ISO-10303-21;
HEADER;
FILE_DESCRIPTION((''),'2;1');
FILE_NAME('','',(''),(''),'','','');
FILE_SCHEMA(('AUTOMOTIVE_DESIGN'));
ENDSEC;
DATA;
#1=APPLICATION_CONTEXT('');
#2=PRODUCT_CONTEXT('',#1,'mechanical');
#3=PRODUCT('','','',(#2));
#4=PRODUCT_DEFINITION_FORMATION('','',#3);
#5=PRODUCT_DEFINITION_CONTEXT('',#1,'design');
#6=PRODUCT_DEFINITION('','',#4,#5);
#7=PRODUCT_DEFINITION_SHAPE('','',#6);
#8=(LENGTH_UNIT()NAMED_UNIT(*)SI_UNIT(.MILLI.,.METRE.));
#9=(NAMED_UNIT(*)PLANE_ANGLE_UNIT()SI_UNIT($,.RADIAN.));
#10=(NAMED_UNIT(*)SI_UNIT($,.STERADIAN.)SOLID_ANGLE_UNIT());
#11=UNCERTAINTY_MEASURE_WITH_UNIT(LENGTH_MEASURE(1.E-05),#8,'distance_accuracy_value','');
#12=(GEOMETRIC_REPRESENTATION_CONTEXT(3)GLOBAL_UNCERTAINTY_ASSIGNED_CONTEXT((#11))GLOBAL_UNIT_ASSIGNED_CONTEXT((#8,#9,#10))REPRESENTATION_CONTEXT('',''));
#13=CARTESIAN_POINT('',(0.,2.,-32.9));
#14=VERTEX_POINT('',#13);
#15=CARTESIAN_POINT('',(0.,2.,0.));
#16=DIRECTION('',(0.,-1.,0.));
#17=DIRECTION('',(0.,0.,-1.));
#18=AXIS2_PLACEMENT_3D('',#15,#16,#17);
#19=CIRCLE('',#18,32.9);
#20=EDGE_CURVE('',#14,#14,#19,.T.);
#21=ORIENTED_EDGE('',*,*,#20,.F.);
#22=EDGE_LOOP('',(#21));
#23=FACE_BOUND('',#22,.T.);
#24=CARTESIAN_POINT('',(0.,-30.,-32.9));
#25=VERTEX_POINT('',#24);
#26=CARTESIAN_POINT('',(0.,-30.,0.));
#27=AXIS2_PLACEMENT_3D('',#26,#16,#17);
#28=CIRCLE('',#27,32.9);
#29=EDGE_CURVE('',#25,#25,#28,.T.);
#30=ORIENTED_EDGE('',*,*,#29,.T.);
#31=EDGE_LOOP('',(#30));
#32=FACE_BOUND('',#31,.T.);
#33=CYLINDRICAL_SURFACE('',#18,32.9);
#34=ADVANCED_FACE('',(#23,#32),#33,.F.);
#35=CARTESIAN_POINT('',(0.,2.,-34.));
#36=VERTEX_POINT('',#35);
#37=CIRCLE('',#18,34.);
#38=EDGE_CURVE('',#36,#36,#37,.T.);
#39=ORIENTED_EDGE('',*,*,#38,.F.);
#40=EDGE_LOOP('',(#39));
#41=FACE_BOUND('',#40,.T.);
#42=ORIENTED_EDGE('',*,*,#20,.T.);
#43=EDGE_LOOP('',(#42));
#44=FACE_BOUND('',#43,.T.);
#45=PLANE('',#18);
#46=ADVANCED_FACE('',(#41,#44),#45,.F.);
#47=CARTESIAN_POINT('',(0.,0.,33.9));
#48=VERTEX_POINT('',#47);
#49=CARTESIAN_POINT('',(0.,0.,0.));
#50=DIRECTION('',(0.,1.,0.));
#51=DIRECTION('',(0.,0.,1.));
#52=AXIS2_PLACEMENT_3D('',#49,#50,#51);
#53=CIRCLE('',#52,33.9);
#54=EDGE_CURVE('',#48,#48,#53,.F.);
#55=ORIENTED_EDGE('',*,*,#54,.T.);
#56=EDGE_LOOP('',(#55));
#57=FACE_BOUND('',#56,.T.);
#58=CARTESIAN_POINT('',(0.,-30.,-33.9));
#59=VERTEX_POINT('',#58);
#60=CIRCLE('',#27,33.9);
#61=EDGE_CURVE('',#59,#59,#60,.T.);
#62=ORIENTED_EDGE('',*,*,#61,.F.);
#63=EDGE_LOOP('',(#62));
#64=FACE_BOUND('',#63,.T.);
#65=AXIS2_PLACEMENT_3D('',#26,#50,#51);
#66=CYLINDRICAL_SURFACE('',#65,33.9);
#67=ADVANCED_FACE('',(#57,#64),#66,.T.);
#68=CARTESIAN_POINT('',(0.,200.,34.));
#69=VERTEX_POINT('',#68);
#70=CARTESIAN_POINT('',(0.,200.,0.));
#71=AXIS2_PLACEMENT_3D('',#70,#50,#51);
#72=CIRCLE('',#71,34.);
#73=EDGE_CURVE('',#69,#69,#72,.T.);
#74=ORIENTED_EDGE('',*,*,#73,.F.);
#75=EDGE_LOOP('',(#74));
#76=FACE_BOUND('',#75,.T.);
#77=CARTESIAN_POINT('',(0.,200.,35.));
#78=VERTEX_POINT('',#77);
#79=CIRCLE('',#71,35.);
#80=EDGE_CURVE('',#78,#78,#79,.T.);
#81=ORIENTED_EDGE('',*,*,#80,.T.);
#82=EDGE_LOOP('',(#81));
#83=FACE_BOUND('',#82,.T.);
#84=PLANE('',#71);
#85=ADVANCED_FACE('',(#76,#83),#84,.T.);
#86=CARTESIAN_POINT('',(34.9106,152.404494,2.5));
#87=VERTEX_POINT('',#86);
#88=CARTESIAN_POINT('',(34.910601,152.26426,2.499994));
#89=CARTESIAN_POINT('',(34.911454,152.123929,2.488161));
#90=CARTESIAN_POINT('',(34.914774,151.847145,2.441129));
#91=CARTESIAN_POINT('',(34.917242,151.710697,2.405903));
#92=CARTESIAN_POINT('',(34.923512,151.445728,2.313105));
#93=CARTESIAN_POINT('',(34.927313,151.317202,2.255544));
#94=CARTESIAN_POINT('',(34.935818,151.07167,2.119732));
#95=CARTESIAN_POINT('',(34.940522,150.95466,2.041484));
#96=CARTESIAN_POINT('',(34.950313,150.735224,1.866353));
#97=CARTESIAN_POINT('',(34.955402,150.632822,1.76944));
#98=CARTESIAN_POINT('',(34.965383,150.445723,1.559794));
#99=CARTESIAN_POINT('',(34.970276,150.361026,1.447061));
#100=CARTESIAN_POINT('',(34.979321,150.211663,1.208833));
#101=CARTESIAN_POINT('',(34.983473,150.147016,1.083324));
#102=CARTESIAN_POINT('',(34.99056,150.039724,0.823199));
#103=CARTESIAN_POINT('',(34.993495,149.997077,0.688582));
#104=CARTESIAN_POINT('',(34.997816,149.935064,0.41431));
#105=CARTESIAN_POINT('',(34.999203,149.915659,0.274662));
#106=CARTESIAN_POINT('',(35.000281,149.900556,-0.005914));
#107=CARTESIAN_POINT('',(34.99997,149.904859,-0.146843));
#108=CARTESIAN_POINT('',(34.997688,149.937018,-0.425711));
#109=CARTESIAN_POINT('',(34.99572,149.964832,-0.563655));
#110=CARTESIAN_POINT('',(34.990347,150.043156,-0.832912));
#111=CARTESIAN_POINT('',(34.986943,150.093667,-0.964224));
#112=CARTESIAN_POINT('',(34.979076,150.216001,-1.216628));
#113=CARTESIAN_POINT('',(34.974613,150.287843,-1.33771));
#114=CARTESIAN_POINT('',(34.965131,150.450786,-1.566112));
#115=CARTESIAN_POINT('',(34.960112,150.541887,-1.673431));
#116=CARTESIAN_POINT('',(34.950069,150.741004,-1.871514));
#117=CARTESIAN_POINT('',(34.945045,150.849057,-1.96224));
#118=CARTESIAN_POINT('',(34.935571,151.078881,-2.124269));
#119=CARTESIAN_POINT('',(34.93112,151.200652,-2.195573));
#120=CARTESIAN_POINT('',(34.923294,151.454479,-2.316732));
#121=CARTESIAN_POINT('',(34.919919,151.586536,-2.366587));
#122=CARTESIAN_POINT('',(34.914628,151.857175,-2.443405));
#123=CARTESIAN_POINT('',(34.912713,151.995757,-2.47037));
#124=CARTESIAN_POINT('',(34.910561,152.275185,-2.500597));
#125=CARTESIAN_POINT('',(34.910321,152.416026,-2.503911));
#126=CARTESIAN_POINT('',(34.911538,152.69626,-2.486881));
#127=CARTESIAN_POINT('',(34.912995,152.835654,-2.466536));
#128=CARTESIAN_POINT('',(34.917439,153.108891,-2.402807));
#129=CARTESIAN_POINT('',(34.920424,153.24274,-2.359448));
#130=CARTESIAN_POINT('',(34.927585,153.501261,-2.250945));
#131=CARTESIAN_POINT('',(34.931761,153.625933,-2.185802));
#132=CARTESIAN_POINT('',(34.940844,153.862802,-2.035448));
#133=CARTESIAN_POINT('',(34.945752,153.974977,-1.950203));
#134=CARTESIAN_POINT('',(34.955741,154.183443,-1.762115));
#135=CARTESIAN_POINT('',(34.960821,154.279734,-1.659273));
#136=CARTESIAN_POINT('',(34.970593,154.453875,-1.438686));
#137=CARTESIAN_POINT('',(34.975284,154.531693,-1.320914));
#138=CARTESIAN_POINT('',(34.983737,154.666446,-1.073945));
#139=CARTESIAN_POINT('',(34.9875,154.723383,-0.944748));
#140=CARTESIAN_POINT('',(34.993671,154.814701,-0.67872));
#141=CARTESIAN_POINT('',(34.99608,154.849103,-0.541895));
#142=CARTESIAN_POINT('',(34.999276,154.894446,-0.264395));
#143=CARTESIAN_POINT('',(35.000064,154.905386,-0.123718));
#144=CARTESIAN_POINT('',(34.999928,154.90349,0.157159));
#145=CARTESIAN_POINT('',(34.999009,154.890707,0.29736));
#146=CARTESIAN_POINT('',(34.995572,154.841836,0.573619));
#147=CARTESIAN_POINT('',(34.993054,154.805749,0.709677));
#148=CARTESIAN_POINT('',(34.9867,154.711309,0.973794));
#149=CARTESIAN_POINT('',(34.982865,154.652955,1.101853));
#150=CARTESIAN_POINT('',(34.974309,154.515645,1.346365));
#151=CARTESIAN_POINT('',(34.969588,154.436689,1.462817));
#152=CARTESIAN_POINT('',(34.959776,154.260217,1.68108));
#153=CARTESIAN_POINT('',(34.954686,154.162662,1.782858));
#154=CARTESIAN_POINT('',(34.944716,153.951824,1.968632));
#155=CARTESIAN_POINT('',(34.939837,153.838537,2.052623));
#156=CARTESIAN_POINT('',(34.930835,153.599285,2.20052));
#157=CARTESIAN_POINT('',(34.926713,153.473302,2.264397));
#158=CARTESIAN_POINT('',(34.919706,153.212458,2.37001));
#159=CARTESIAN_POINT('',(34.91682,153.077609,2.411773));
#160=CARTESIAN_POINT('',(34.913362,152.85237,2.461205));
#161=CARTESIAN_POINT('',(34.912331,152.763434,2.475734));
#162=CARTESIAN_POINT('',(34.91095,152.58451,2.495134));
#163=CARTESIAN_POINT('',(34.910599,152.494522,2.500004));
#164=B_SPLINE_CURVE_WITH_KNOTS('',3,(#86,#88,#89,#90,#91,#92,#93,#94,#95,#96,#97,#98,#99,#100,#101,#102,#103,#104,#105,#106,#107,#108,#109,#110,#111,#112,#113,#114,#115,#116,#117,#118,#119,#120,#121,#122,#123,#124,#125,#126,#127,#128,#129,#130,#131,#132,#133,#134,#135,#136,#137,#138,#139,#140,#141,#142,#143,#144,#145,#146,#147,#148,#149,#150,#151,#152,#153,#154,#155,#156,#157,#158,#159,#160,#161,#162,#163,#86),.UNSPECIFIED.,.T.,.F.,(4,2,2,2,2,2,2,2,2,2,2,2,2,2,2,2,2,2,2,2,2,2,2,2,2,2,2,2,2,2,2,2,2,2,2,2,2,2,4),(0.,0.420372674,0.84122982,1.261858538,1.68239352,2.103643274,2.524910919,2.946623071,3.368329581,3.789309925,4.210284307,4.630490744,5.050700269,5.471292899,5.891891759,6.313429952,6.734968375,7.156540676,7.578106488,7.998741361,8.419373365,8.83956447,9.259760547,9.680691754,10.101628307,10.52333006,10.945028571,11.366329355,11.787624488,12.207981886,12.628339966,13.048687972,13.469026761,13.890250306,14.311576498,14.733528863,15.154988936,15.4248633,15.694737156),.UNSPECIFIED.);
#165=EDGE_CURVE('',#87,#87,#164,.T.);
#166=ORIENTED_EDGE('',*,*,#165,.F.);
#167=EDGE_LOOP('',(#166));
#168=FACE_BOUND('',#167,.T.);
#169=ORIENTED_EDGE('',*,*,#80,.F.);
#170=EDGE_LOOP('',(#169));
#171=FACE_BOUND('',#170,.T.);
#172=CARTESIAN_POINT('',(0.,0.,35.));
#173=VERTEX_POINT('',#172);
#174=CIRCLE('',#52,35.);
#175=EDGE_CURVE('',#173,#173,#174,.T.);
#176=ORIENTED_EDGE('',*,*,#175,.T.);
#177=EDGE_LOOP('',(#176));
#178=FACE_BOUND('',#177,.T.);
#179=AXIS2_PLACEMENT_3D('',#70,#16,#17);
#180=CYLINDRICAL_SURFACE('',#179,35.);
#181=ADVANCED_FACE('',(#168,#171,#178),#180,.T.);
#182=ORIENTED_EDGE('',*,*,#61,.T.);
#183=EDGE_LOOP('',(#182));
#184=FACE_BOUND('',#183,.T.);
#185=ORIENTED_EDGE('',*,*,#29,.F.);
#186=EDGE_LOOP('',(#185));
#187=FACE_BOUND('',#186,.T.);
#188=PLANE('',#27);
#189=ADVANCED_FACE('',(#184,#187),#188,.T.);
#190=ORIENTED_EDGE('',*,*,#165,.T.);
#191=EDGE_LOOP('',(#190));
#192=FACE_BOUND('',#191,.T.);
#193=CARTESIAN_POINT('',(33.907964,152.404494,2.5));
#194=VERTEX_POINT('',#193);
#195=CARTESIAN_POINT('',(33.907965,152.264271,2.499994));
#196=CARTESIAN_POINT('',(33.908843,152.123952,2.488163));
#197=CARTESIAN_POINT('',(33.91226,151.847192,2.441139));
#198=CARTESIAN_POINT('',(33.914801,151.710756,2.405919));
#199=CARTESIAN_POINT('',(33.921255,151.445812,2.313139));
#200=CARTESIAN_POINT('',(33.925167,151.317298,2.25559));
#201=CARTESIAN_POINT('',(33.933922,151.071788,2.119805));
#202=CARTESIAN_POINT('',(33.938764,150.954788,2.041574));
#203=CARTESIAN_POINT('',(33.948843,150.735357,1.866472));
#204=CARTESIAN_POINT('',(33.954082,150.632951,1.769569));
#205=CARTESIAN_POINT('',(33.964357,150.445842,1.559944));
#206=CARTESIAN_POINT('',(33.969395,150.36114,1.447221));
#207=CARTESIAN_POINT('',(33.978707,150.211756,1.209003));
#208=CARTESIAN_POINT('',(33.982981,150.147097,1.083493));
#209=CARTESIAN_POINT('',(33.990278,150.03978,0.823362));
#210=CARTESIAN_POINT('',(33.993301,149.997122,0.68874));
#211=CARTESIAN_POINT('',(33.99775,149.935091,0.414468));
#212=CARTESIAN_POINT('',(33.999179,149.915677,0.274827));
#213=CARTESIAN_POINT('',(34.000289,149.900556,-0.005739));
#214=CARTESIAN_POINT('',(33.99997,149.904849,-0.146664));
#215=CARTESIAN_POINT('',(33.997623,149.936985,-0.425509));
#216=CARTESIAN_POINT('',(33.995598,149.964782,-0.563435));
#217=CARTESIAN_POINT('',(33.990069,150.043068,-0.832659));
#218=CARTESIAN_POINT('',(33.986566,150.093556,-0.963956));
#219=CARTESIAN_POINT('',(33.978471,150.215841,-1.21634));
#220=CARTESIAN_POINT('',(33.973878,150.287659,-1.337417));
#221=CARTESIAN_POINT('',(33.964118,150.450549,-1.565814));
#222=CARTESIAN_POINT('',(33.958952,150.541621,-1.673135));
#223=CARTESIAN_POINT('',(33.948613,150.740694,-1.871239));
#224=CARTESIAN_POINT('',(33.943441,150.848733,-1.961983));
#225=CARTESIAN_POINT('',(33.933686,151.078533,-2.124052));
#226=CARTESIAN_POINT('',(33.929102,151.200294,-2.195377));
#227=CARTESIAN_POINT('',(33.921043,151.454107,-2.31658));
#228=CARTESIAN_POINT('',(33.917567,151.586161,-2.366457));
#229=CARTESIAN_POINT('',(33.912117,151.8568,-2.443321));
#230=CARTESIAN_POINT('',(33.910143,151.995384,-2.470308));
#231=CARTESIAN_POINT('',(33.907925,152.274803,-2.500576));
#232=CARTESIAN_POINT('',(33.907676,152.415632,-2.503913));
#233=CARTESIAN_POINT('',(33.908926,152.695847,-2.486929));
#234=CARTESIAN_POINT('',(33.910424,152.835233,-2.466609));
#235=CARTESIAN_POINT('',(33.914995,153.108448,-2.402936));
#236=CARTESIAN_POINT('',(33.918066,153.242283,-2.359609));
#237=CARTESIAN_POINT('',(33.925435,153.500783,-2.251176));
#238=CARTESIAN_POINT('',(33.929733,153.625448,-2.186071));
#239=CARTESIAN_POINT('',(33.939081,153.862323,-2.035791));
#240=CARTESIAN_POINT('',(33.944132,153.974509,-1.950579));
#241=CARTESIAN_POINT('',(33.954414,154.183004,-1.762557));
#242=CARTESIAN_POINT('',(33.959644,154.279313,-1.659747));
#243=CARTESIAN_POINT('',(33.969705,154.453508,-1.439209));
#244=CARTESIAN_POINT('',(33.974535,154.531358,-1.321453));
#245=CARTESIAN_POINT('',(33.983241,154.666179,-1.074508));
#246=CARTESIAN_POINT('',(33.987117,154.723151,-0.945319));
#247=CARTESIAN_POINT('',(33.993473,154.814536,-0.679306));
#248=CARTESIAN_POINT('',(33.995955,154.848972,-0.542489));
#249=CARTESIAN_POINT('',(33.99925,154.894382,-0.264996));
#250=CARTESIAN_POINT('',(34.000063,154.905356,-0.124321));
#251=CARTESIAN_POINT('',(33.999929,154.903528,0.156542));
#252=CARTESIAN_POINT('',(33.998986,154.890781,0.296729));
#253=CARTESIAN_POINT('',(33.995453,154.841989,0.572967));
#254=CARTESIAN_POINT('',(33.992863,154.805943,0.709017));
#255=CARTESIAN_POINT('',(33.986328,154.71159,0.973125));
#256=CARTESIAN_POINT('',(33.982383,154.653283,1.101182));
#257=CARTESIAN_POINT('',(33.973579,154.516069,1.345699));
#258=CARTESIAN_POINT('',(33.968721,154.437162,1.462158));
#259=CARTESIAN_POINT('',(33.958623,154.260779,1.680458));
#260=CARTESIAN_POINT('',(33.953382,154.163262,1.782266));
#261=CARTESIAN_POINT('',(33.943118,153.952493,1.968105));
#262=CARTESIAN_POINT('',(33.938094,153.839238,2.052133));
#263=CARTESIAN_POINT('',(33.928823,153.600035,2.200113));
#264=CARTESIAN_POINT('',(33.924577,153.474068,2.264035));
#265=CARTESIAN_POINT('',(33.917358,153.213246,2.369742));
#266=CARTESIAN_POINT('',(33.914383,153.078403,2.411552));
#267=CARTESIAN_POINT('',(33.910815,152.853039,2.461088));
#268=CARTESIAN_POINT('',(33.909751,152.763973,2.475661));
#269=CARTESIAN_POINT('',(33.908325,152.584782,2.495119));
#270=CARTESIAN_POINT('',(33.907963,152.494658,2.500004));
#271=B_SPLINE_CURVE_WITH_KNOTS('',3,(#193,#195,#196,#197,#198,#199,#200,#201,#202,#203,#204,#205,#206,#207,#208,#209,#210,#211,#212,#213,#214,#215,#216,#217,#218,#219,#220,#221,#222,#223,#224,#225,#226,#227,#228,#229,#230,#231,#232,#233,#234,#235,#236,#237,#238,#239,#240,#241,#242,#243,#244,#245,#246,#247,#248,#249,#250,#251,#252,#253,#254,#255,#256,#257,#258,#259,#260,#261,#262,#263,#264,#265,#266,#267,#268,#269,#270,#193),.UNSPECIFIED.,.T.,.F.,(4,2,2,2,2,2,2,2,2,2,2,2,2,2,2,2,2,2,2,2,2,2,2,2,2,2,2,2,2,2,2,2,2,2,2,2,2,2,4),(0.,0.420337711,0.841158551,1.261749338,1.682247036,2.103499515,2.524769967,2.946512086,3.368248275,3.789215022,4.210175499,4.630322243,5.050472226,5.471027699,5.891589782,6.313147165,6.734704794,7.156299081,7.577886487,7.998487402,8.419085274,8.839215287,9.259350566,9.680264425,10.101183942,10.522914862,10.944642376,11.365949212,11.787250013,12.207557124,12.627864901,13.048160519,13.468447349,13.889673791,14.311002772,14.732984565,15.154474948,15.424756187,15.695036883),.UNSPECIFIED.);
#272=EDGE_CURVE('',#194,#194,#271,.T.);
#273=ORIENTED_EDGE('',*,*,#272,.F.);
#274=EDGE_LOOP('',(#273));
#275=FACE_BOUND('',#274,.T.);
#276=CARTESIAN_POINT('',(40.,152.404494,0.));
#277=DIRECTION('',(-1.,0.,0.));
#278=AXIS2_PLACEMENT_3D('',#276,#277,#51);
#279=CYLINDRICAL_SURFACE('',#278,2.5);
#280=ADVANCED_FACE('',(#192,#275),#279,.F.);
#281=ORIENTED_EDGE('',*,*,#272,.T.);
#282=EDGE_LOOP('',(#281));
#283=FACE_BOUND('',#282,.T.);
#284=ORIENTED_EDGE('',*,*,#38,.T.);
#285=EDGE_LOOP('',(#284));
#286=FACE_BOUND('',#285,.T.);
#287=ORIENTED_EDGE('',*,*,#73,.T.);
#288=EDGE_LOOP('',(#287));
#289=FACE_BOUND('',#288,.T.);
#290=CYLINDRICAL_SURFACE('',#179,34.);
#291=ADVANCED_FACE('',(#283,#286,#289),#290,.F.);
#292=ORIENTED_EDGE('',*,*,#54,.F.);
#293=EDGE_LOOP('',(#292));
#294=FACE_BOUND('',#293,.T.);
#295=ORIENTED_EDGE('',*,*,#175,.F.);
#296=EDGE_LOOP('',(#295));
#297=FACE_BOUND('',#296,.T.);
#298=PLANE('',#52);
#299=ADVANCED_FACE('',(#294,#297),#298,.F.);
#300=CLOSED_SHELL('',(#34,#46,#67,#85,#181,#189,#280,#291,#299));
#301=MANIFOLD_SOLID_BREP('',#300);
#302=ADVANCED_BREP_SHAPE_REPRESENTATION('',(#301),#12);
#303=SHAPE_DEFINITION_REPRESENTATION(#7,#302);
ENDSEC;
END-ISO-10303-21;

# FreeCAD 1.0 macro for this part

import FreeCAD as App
import Part
import Sketcher
Q = App.Units.Quantity

doc = App.newDocument("Part")
params = doc.addObject("Spreadsheet::Sheet", "Params")
for row, (alias, value) in enumerate([
    ("sketch1_diameter", "70 mm"),
    ("sketch1_diameter2", "68 mm"),
    ("pad1_length", "200 mm"),
    ("sketch2_diameter", "68 mm"),
    ("sketch2_diameter2", "65.8 mm"),
    ("pad2_length", "2 mm"),
    ("sketch3_diameter", "67.8 mm"),
    ("sketch3_diameter2", "65.8 mm"),
    ("pad3_length", "30 mm"),
    ("sketch4_diameter", "5 mm"),
    ("pocket1_length", "40 mm"),
], start=1):
    params.set(f"A{row}", alias)
    params.set(f"B{row}", "=" + value)
    params.setAlias(f"B{row}", alias)

body = doc.addObject("PartDesign::Body", "Body")

# Sketch on XZ plane
sketch1 = body.newObject("Sketcher::SketchObject", "Sketch")
sketch1.AttachmentSupport = (doc.getObject("XZ_Plane"), [""])
sketch1.MapMode = "FlatFace"
sketch1.addGeometry(Part.Circle(App.Vector(0, 0, 0), App.Vector(0, 0, 1), 35), False)
sketch1.addGeometry(Part.Circle(App.Vector(0, 0, 0), App.Vector(0, 0, 1), 34), False)
sketch1.addConstraint(Sketcher.Constraint("Coincident", 0, 3, -1, 1))
sketch1.addConstraint(Sketcher.Constraint("Coincident", 1, 3, -1, 1))
sketch1.addConstraint(Sketcher.Constraint("Diameter", 0, Q("70 mm")))
sketch1.addConstraint(Sketcher.Constraint("Diameter", 1, Q("68 mm")))
sketch1.setExpression("Constraints[2]", "Params.sketch1_diameter")
sketch1.setExpression("Constraints[3]", "Params.sketch1_diameter2")
pad1 = body.newObject("PartDesign::Pad", "Pad")
pad1.Profile = sketch1
pad1.setExpression("Length", "Params.pad1_length")
pad1.Reversed = True

# Sketch on XZ plane
sketch2 = body.newObject("Sketcher::SketchObject", "Sketch001")
sketch2.AttachmentSupport = (doc.getObject("XZ_Plane"), [""])
sketch2.MapMode = "FlatFace"
sketch2.addGeometry(Part.Circle(App.Vector(0, 0, 0), App.Vector(0, 0, 1), 34), False)
sketch2.addGeometry(Part.Circle(App.Vector(0, 0, 0), App.Vector(0, 0, 1), 33), False)
sketch2.addConstraint(Sketcher.Constraint("Coincident", 0, 3, -1, 1))
sketch2.addConstraint(Sketcher.Constraint("Coincident", 1, 3, -1, 1))
sketch2.addConstraint(Sketcher.Constraint("Diameter", 0, Q("68 mm")))
sketch2.addConstraint(Sketcher.Constraint("Diameter", 1, Q("65.8 mm")))
sketch2.setExpression("Constraints[2]", "Params.sketch2_diameter")
sketch2.setExpression("Constraints[3]", "Params.sketch2_diameter2")
pad2 = body.newObject("PartDesign::Pad", "Pad001")
pad2.Profile = sketch2
pad2.setExpression("Length", "Params.pad2_length")
pad2.Reversed = True

# Sketch on XZ plane
sketch3 = body.newObject("Sketcher::SketchObject", "Sketch002")
sketch3.AttachmentSupport = (doc.getObject("XZ_Plane"), [""])
sketch3.MapMode = "FlatFace"
sketch3.AttachmentOffset = App.Placement(App.Vector(0, 0, 30), App.Rotation())
sketch3.addGeometry(Part.Circle(App.Vector(0, 0, 0), App.Vector(0, 0, 1), 34), False)
sketch3.addGeometry(Part.Circle(App.Vector(0, 0, 0), App.Vector(0, 0, 1), 33), False)
sketch3.addConstraint(Sketcher.Constraint("Coincident", 0, 3, -1, 1))
sketch3.addConstraint(Sketcher.Constraint("Coincident", 1, 3, -1, 1))
sketch3.addConstraint(Sketcher.Constraint("Diameter", 0, Q("67.8 mm")))
sketch3.addConstraint(Sketcher.Constraint("Diameter", 1, Q("65.8 mm")))
sketch3.setExpression("Constraints[2]", "Params.sketch3_diameter")
sketch3.setExpression("Constraints[3]", "Params.sketch3_diameter2")
pad3 = body.newObject("PartDesign::Pad", "Pad002")
pad3.Profile = sketch3
pad3.setExpression("Length", "Params.pad3_length")
pad3.Reversed = True

# Sketch on YZ plane
sketch4 = body.newObject("Sketcher::SketchObject", "Sketch003")
sketch4.AttachmentSupport = (doc.getObject("YZ_Plane"), [""])
sketch4.MapMode = "FlatFace"
sketch4.addGeometry(Part.Circle(App.Vector(152.4, 0, 0), App.Vector(0, 0, 1), 2.5), False)
sketch4.addConstraint(Sketcher.Constraint("PointOnObject", 0, 3, -1))
sketch4.addConstraint(Sketcher.Constraint("Diameter", 0, Q("5 mm")))
sketch4.addConstraint(Sketcher.Constraint("DistanceX", -1, 1, 0, 3, Q("152.404494 mm")))
sketch4.setExpression("Constraints[1]", "Params.sketch4_diameter")
pocket1 = body.newObject("PartDesign::Pocket", "Pocket")
pocket1.Profile = sketch4
pocket1.setExpression("Length", "Params.pocket1_length")
pocket1.Reversed = True

doc.recompute()
